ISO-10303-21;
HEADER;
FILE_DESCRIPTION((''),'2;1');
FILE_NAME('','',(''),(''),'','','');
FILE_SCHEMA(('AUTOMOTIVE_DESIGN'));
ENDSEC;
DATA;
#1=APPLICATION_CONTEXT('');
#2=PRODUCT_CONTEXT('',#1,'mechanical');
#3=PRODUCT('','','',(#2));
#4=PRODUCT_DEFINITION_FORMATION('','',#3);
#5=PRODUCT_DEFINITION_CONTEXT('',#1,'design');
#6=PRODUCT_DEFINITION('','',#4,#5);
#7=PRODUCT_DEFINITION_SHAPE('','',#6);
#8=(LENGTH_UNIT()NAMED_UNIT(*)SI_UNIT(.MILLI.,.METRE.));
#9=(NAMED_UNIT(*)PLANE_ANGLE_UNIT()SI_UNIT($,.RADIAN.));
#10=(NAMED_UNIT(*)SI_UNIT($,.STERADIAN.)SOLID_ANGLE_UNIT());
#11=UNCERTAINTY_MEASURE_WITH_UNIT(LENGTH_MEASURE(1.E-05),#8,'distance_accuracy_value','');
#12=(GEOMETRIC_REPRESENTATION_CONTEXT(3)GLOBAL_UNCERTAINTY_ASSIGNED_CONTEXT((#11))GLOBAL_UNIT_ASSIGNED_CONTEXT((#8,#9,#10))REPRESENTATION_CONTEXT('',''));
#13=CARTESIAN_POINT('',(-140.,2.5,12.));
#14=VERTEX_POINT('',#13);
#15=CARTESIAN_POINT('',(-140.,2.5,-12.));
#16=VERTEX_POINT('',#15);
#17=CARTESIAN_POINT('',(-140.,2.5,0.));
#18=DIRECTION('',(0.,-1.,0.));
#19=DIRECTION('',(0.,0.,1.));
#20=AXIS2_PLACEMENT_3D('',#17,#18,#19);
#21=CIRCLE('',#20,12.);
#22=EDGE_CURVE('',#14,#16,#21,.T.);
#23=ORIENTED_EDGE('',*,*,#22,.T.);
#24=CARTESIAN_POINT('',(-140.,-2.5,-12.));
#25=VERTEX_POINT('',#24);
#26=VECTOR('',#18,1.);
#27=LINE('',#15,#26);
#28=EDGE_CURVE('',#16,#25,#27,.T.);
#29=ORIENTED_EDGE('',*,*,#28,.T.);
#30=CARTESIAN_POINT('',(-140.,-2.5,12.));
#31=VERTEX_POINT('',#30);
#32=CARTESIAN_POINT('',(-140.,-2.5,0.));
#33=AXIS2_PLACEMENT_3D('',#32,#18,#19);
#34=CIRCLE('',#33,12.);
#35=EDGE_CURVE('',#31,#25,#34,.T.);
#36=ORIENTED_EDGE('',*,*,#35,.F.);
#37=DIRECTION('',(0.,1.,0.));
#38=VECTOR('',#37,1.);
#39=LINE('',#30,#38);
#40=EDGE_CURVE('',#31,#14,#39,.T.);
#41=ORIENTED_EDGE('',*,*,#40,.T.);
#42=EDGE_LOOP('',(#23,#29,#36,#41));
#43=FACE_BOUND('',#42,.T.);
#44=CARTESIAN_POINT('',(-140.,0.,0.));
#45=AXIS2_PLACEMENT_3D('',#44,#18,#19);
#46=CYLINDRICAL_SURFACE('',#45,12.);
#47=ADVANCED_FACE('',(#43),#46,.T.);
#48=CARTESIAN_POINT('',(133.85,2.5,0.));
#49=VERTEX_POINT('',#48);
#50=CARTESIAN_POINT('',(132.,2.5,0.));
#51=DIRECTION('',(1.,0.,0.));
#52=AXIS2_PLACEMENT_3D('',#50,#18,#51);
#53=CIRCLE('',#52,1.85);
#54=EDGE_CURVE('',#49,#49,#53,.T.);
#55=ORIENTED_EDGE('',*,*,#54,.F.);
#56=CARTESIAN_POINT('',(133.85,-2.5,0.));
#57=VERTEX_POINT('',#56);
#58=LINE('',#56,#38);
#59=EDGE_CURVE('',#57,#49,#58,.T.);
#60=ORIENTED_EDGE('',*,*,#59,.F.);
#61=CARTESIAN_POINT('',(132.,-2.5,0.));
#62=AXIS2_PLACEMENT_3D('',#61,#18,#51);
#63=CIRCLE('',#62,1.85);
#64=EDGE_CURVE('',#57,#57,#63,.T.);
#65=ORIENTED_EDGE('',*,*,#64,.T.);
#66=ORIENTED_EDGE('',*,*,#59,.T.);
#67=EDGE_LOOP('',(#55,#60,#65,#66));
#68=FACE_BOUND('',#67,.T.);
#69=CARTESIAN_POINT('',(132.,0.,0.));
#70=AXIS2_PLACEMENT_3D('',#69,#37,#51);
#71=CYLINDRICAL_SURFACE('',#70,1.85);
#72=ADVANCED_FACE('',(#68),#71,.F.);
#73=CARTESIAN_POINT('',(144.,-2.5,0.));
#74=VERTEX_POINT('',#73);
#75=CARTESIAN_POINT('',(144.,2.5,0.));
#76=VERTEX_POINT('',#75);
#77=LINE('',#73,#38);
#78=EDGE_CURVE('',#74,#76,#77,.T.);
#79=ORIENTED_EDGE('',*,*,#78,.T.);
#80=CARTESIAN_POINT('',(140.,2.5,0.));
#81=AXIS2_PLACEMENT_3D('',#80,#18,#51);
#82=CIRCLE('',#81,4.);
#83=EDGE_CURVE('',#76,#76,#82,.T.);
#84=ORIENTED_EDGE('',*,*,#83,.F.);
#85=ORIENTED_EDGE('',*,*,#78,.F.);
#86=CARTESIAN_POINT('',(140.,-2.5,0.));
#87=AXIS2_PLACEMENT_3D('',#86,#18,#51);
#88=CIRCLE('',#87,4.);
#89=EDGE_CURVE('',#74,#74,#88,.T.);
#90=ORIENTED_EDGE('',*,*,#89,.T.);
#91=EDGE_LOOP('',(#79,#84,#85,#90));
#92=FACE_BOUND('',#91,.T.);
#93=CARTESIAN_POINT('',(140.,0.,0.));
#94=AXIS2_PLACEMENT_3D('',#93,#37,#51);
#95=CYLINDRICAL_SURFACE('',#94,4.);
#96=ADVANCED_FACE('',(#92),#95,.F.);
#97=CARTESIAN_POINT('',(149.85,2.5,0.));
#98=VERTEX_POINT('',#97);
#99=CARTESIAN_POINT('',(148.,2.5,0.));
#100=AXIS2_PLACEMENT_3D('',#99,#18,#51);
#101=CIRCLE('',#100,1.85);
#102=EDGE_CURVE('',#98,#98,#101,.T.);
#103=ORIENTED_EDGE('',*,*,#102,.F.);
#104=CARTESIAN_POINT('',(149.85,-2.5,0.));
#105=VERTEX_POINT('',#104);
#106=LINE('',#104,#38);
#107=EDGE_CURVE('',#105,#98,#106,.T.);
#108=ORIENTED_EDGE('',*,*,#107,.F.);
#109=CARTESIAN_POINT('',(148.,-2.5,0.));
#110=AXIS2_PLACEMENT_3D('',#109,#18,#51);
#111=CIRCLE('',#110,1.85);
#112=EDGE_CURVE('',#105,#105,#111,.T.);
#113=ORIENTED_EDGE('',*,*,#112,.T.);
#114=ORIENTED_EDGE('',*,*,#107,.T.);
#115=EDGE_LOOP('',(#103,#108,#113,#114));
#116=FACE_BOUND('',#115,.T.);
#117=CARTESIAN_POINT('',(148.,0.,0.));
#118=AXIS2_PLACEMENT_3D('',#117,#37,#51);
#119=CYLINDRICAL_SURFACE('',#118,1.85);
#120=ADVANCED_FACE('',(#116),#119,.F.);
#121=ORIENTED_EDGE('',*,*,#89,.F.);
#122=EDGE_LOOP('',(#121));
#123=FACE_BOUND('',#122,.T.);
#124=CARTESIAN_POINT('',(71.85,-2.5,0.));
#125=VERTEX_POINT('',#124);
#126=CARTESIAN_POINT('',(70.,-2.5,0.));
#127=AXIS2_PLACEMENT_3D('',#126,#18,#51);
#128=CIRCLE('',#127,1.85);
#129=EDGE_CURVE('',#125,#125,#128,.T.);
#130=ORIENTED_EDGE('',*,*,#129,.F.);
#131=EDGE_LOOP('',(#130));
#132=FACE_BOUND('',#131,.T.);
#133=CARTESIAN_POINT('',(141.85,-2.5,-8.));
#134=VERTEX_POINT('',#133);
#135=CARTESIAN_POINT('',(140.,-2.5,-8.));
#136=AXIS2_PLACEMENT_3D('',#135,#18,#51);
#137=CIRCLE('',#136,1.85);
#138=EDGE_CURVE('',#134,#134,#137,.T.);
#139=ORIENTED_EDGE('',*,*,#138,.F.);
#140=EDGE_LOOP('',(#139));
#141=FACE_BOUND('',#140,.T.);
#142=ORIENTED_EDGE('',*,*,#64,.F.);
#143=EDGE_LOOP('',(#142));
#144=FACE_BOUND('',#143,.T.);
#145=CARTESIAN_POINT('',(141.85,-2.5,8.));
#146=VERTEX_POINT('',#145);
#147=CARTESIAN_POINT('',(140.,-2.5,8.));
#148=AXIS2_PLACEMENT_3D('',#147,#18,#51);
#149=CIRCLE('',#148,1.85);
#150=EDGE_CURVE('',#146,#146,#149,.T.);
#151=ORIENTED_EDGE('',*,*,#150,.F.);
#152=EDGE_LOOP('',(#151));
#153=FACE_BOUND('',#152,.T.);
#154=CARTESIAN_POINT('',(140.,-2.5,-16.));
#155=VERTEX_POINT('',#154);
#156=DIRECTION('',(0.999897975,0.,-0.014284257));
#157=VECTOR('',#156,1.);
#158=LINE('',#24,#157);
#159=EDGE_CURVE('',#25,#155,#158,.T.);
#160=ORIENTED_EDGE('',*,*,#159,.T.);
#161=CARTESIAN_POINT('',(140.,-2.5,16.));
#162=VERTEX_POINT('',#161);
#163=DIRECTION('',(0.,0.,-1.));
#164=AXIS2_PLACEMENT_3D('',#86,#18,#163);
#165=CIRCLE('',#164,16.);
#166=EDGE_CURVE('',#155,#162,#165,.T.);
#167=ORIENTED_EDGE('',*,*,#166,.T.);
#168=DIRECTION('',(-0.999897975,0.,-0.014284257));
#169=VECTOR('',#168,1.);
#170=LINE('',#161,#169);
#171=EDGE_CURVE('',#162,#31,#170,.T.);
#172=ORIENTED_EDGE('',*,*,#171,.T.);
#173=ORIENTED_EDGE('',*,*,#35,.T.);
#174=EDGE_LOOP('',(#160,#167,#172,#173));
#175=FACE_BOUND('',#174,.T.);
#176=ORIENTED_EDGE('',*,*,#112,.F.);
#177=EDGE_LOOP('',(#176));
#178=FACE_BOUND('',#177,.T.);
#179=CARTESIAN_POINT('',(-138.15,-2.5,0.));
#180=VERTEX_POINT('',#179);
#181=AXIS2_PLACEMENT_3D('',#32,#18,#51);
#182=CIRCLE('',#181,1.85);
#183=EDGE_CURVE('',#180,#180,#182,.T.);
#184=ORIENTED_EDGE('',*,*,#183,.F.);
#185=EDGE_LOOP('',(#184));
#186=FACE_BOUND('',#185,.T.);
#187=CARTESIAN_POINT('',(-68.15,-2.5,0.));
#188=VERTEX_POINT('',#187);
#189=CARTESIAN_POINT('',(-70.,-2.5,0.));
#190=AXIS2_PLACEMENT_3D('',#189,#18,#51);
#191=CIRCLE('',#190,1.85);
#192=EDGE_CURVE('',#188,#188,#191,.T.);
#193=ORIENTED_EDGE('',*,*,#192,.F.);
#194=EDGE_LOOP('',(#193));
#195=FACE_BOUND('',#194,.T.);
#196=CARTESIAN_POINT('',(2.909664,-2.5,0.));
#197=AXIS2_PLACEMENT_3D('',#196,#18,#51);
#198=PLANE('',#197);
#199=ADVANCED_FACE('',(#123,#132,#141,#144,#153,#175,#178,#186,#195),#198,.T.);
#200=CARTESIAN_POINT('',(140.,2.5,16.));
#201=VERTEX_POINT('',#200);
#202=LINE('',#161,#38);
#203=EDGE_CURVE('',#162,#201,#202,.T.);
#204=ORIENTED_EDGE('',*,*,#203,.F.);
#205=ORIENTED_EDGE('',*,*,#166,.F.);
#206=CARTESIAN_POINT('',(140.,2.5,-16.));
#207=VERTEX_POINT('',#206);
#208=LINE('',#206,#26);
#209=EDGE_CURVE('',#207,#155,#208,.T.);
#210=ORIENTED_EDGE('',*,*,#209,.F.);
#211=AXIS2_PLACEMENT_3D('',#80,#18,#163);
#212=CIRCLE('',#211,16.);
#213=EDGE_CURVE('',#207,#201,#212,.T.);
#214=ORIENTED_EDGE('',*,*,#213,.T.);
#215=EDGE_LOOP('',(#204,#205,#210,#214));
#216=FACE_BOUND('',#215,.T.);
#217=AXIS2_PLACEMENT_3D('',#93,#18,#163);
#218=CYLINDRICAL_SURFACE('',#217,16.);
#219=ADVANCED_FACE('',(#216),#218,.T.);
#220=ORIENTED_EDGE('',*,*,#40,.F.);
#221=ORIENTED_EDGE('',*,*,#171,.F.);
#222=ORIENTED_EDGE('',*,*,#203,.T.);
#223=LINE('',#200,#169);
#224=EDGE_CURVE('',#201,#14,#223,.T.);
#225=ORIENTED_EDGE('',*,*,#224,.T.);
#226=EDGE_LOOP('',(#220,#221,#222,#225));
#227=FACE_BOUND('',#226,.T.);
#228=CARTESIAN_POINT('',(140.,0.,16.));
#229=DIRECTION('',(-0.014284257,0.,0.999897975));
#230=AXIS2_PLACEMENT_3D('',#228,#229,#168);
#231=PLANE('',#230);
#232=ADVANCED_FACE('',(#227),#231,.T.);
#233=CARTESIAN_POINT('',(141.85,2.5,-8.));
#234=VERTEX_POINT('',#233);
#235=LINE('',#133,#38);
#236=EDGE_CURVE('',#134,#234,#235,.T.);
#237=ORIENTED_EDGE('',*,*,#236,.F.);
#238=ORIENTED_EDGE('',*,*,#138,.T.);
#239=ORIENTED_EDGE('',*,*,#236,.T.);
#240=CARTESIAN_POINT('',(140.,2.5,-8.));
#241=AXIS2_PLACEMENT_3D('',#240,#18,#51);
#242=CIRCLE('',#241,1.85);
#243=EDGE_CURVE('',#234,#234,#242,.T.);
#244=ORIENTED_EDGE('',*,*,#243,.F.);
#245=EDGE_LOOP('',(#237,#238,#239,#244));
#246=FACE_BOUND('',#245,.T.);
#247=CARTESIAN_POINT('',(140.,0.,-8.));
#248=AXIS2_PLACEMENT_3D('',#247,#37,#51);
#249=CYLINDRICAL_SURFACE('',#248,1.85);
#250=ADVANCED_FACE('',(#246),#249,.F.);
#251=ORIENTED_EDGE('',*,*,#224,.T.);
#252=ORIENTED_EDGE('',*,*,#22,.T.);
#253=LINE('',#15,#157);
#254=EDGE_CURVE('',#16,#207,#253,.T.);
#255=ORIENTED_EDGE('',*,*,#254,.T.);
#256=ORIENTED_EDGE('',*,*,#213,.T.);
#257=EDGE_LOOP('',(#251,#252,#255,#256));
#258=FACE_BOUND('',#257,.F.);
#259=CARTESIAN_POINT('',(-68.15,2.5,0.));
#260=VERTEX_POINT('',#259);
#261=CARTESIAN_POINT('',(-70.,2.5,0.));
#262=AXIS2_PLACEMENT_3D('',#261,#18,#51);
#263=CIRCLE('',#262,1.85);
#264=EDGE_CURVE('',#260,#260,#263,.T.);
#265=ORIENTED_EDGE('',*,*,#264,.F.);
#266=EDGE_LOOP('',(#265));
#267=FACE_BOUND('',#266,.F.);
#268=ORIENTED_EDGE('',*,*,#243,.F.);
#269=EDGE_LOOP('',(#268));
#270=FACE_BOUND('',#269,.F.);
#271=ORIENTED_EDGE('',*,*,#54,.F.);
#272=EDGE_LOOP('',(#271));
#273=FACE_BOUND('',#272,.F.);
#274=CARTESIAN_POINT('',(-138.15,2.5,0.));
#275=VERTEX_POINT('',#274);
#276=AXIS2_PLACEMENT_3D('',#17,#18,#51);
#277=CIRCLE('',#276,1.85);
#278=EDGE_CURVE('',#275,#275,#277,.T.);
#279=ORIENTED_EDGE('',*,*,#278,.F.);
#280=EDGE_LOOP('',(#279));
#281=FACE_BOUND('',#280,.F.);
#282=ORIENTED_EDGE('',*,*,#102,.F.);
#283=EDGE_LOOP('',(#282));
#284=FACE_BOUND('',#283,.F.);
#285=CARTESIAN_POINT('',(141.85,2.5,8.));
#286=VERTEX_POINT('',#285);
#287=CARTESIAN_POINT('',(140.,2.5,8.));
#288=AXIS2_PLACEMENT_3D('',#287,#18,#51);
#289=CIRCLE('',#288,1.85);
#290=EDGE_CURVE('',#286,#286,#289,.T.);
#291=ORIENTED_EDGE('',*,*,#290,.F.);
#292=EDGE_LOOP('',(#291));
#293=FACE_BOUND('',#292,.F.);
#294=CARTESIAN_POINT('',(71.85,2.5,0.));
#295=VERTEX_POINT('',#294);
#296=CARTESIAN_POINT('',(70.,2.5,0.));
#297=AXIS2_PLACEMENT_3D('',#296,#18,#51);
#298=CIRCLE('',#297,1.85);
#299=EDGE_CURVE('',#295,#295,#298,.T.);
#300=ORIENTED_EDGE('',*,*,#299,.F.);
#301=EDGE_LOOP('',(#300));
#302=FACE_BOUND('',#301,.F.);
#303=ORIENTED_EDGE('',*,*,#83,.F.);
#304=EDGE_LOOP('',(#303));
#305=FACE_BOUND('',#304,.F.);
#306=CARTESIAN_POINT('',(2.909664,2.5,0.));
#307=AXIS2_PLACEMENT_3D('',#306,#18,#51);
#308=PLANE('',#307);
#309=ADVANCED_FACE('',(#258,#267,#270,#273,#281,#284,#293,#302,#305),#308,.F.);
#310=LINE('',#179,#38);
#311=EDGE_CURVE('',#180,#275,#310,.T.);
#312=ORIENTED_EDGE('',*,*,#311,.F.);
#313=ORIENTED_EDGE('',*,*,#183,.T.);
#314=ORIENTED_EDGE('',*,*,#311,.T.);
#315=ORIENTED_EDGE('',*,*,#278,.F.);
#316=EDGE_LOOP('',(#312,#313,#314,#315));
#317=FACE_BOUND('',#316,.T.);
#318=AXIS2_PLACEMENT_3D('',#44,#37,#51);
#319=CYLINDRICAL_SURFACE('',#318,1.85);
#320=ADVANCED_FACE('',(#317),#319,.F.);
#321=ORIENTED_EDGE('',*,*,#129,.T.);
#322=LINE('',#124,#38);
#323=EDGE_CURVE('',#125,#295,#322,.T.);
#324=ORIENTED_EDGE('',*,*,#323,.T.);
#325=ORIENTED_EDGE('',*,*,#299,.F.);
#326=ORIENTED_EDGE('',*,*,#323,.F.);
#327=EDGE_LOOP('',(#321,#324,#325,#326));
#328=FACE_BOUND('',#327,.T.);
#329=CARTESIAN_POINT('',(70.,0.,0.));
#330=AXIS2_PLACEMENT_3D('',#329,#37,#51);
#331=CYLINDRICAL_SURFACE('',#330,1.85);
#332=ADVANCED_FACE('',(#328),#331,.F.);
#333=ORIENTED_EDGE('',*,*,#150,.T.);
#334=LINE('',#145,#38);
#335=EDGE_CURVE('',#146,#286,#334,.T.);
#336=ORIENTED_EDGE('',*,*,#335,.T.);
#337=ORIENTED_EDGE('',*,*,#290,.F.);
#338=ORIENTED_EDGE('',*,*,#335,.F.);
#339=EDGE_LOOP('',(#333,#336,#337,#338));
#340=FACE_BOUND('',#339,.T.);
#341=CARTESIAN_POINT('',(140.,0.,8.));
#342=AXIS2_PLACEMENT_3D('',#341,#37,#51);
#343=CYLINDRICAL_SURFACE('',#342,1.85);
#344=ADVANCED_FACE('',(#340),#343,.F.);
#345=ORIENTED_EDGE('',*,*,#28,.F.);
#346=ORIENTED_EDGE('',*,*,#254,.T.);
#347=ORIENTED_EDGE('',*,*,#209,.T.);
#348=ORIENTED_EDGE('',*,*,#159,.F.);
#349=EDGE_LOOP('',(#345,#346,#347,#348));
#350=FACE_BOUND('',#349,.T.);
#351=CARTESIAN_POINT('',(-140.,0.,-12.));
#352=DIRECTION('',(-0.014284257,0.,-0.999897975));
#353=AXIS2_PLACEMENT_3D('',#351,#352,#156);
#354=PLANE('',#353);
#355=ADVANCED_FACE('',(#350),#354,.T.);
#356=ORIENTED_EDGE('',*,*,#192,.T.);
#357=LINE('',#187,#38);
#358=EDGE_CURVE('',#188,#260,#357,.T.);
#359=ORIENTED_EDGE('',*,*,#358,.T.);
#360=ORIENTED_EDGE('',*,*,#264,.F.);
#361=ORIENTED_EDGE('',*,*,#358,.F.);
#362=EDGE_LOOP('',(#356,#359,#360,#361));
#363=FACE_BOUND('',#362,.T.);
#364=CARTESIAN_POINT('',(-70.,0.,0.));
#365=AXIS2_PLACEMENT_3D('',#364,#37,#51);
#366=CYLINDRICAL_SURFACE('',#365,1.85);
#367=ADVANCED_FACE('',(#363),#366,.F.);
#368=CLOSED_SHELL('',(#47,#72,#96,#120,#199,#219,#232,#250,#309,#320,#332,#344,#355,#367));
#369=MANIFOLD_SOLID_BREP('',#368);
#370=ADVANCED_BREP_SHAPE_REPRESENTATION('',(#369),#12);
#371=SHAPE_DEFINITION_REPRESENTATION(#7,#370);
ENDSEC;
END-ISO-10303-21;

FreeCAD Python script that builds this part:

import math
import FreeCAD as App
import Part
import Sketcher
from FreeCAD import Vector

doc = App.newDocument("Part")
body = doc.addObject("PartDesign::Body", "Body")

# Sketch on XZ plane
sketch1 = body.newObject("Sketcher::SketchObject", "Sketch")
sketch1.AttachmentSupport = (doc.getObject("XZ_Plane"), [""])
sketch1.MapMode = "FlatFace"
sketch1.addGeometry([
    Part.ArcOfCircle(Part.Circle(Vector(-140, 0, 0), Vector(0, 0, 1), 12), math.radians(90), math.radians(270)),  # 0
    Part.LineSegment(Vector(-140, -12, 0), Vector(140, -16, 0)),  # 1
    Part.ArcOfCircle(Part.Circle(Vector(140, 0, 0), Vector(0, 0, 1), 16), math.radians(-90), math.radians(90)),  # 2
    Part.LineSegment(Vector(140, 16, 0), Vector(-140, 12, 0)),  # 3
    Part.Circle(Vector(140, -8, 0), Vector(0, 0, 1), 1.9),  # 4
    Part.Circle(Vector(-140, 0, 0), Vector(0, 0, 1), 1.9),  # 5
    Part.Circle(Vector(-70, 0, 0), Vector(0, 0, 1), 1.9),  # 6
    Part.Circle(Vector(70, 0, 0), Vector(0, 0, 1), 1.9),  # 7
    Part.Circle(Vector(132, 0, 0), Vector(0, 0, 1), 1.9),  # 8
    Part.Circle(Vector(140, 0, 0), Vector(0, 0, 1), 4),  # 9
    Part.Circle(Vector(148, 0, 0), Vector(0, 0, 1), 1.9),  # 10
    Part.Circle(Vector(140, 8, 0), Vector(0, 0, 1), 1.9),  # 11
], False)
sketch1.addConstraint([
    Sketcher.Constraint("Coincident", 0, 2, 1, 1),
    Sketcher.Constraint("Coincident", 1, 2, 2, 1),
    Sketcher.Constraint("Coincident", 2, 2, 3, 1),
    Sketcher.Constraint("Coincident", 3, 2, 0, 1),
    Sketcher.Constraint("Coincident", 5, 3, 0, 3),
    Sketcher.Constraint("Coincident", 9, 3, 2, 3),
    Sketcher.Constraint("Equal", 4, 5),
    Sketcher.Constraint("Equal", 5, 6),
    Sketcher.Constraint("Equal", 6, 7),
    Sketcher.Constraint("Equal", 7, 8),
    Sketcher.Constraint("Equal", 8, 10),
    Sketcher.Constraint("Equal", 10, 11),
    Sketcher.Constraint("Symmetric", 0, 3, 2, 3, -1, 1),
    Sketcher.Constraint("Symmetric", 6, 3, 7, 3, -1, 1),
    Sketcher.Constraint("Symmetric", 4, 3, 11, 3, -1),
    Sketcher.Constraint("Symmetric", 1, 2, 2, 2, -1),
    Sketcher.Constraint("PointOnObject", 6, 3, -1),
    Sketcher.Constraint("PointOnObject", 8, 3, -1),
    Sketcher.Constraint("PointOnObject", 10, 3, -1),
    Sketcher.Constraint("Vertical", 2, 3, 4, 3),
    Sketcher.Constraint("Vertical", 5, 3, 0, 2),
    Sketcher.Constraint("Vertical", 11, 3, 1, 2),
    Sketcher.Constraint("Vertical", 0, 2, 3, 2),
    Sketcher.Constraint("Diameter", 9, 8.0),
    Sketcher.Constraint("Radius", 0, 12.0),
    Sketcher.Constraint("Radius", 2, 16.0),
    Sketcher.Constraint("Diameter", 4, 3.7),
    Sketcher.Constraint("DistanceX", 0, 3, -1, 1, 140.0),
    Sketcher.Constraint("DistanceY", 4, 3, -1, 1, 8.0),
    Sketcher.Constraint("DistanceX", 6, 3, -1, 1, 70.0),
    Sketcher.Constraint("DistanceX", -1, 1, 8, 3, 132.0),
    Sketcher.Constraint("DistanceX", -1, 1, 10, 3, 148.0),
])
pad1 = body.newObject("PartDesign::Pad", "Pad")
pad1.Profile = sketch1
pad1.Length = 5
pad1.Midplane = True

doc.recompute()
